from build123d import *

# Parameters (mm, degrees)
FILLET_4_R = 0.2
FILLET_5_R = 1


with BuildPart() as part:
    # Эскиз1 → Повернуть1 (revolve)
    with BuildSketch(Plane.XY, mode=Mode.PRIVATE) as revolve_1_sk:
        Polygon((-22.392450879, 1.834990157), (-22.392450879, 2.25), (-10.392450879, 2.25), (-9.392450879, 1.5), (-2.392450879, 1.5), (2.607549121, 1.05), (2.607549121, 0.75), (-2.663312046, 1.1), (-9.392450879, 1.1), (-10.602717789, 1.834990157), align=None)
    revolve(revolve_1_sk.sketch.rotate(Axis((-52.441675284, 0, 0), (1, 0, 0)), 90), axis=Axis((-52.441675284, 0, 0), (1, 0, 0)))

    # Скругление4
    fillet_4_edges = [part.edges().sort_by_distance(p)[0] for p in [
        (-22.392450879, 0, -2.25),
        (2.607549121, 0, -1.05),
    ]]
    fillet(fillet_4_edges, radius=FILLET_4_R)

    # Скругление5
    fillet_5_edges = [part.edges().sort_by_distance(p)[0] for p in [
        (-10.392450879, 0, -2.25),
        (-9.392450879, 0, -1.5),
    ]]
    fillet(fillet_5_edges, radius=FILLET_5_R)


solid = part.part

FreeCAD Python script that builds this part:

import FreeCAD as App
import Part
import Sketcher


def edges_at(feature, points):
    """Names of the edges that pass closest to the given points."""
    edges = feature.Shape.Edges
    near = lambda p: min(range(len(edges)), key=lambda i: edges[i].distToShape(Part.Vertex(*p))[0])
    return sorted({f"Edge{near(p) + 1}" for p in points})

doc = App.newDocument("Part")
body = doc.addObject("PartDesign::Body", "Body")

sketch1 = body.newObject("Sketcher::SketchObject", "Sketch")
sketch1.AttachmentSupport = (doc.getObject("XY_Plane"), [""])
sketch1.MapMode = "FlatFace"
sketch1.addGeometry(Part.LineSegment(App.Vector(-22.39, 2.25, 0), App.Vector(-22.39, 1.83, 0)), False)
sketch1.addGeometry(Part.LineSegment(App.Vector(-22.39, 1.83, 0), App.Vector(-10.6, 1.83, 0)), False)
sketch1.addGeometry(Part.LineSegment(App.Vector(-10.6, 1.83, 0), App.Vector(-9.39, 1.1, 0)), False)
sketch1.addGeometry(Part.LineSegment(App.Vector(-9.39, 1.1, 0), App.Vector(-2.66, 1.1, 0)), False)
sketch1.addGeometry(Part.LineSegment(App.Vector(-2.66, 1.1, 0), App.Vector(2.61, 0.75, 0)), False)
sketch1.addGeometry(Part.LineSegment(App.Vector(2.61, 0.75, 0), App.Vector(2.61, 1.05, 0)), False)
sketch1.addGeometry(Part.LineSegment(App.Vector(2.61, 1.05, 0), App.Vector(-2.39, 1.5, 0)), False)
sketch1.addGeometry(Part.LineSegment(App.Vector(-2.39, 1.5, 0), App.Vector(-9.39, 1.5, 0)), False)
sketch1.addGeometry(Part.LineSegment(App.Vector(-9.39, 1.5, 0), App.Vector(-10.39, 2.25, 0)), False)
sketch1.addGeometry(Part.LineSegment(App.Vector(-10.39, 2.25, 0), App.Vector(-22.39, 2.25, 0)), False)
sketch1.addConstraint(Sketcher.Constraint("Coincident", 0, 2, 1, 1))
sketch1.addConstraint(Sketcher.Constraint("Coincident", 1, 2, 2, 1))
sketch1.addConstraint(Sketcher.Constraint("Coincident", 2, 2, 3, 1))
sketch1.addConstraint(Sketcher.Constraint("Coincident", 3, 2, 4, 1))
sketch1.addConstraint(Sketcher.Constraint("Coincident", 4, 2, 5, 1))
sketch1.addConstraint(Sketcher.Constraint("Coincident", 5, 2, 6, 1))
sketch1.addConstraint(Sketcher.Constraint("Coincident", 6, 2, 7, 1))
sketch1.addConstraint(Sketcher.Constraint("Coincident", 7, 2, 8, 1))
sketch1.addConstraint(Sketcher.Constraint("Coincident", 8, 2, 9, 1))
sketch1.addConstraint(Sketcher.Constraint("Coincident", 9, 2, 0, 1))
sketch1.addConstraint(Sketcher.Constraint("Vertical", 0))
sketch1.addConstraint(Sketcher.Constraint("Horizontal", 1))
sketch1.addConstraint(Sketcher.Constraint("Horizontal", 3))
sketch1.addConstraint(Sketcher.Constraint("Vertical", 5))
sketch1.addConstraint(Sketcher.Constraint("Horizontal", 7))
sketch1.addConstraint(Sketcher.Constraint("Horizontal", 9))
sketch1.addConstraint(Sketcher.Constraint("Vertical", 2, 2, 7, 2))
sketch1.addConstraint(Sketcher.Constraint("DistanceX", 7, 2, 7, 1, 7.0))
sketch1.addConstraint(Sketcher.Constraint("DistanceX", 9, 2, 9, 1, 12.0))
sketch1.addConstraint(Sketcher.Constraint("DistanceY", 5, 1, 5, 2, 0.3))
sketch1.addConstraint(Sketcher.Constraint("DistanceX", 0, 2, 2, 2, 13.0))
sketch1.addConstraint(Sketcher.Constraint("DistanceX", 2, 2, 4, 2, 12.0))
sketch1.addConstraint(Sketcher.Constraint("DistanceY", -1, 1, 2, 2, 1.1))
sketch1.addConstraint(Sketcher.Constraint("DistanceY", -1, 1, 6, 2, 1.5))
sketch1.addConstraint(Sketcher.Constraint("Distance", 8, 1.25))
sketch1.addConstraint(Sketcher.Constraint("DistanceY", -1, 1, 4, 2, 0.75))
sketch1.addConstraint(Sketcher.Constraint("DistanceX", 3, 1, 3, 2, 6.729139))
sketch1.addConstraint(Sketcher.Constraint("DistanceY", 0, 2, 0, 1, 0.41501))
sketch1.addConstraint(Sketcher.Constraint("DistanceX", 1, 1, 1, 2, 11.789733))
sketch1.addConstraint(Sketcher.Constraint("DistanceX", 0, 2, -1, 1, 22.392451))
revolution = body.newObject("PartDesign::Revolution", "Revolution")
revolution.Profile = sketch1
revolution.ReferenceAxis = (sketch1, ["H_Axis"])
revolution.Angle = 360
doc.recompute()

fillet = body.newObject("PartDesign::Fillet", "Fillet")
fillet.Base = (revolution, edges_at(revolution, [(-22.392, 0, -2.25), (2.608, 0, -1.05)]))
fillet.Radius = 0.2
doc.recompute()

fillet2 = body.newObject("PartDesign::Fillet", "Fillet001")
fillet2.Base = (fillet, edges_at(fillet, [(-10.392, 0, -2.25), (-9.392, 0, -1.5)]))
fillet2.Radius = 1

doc.recompute()
